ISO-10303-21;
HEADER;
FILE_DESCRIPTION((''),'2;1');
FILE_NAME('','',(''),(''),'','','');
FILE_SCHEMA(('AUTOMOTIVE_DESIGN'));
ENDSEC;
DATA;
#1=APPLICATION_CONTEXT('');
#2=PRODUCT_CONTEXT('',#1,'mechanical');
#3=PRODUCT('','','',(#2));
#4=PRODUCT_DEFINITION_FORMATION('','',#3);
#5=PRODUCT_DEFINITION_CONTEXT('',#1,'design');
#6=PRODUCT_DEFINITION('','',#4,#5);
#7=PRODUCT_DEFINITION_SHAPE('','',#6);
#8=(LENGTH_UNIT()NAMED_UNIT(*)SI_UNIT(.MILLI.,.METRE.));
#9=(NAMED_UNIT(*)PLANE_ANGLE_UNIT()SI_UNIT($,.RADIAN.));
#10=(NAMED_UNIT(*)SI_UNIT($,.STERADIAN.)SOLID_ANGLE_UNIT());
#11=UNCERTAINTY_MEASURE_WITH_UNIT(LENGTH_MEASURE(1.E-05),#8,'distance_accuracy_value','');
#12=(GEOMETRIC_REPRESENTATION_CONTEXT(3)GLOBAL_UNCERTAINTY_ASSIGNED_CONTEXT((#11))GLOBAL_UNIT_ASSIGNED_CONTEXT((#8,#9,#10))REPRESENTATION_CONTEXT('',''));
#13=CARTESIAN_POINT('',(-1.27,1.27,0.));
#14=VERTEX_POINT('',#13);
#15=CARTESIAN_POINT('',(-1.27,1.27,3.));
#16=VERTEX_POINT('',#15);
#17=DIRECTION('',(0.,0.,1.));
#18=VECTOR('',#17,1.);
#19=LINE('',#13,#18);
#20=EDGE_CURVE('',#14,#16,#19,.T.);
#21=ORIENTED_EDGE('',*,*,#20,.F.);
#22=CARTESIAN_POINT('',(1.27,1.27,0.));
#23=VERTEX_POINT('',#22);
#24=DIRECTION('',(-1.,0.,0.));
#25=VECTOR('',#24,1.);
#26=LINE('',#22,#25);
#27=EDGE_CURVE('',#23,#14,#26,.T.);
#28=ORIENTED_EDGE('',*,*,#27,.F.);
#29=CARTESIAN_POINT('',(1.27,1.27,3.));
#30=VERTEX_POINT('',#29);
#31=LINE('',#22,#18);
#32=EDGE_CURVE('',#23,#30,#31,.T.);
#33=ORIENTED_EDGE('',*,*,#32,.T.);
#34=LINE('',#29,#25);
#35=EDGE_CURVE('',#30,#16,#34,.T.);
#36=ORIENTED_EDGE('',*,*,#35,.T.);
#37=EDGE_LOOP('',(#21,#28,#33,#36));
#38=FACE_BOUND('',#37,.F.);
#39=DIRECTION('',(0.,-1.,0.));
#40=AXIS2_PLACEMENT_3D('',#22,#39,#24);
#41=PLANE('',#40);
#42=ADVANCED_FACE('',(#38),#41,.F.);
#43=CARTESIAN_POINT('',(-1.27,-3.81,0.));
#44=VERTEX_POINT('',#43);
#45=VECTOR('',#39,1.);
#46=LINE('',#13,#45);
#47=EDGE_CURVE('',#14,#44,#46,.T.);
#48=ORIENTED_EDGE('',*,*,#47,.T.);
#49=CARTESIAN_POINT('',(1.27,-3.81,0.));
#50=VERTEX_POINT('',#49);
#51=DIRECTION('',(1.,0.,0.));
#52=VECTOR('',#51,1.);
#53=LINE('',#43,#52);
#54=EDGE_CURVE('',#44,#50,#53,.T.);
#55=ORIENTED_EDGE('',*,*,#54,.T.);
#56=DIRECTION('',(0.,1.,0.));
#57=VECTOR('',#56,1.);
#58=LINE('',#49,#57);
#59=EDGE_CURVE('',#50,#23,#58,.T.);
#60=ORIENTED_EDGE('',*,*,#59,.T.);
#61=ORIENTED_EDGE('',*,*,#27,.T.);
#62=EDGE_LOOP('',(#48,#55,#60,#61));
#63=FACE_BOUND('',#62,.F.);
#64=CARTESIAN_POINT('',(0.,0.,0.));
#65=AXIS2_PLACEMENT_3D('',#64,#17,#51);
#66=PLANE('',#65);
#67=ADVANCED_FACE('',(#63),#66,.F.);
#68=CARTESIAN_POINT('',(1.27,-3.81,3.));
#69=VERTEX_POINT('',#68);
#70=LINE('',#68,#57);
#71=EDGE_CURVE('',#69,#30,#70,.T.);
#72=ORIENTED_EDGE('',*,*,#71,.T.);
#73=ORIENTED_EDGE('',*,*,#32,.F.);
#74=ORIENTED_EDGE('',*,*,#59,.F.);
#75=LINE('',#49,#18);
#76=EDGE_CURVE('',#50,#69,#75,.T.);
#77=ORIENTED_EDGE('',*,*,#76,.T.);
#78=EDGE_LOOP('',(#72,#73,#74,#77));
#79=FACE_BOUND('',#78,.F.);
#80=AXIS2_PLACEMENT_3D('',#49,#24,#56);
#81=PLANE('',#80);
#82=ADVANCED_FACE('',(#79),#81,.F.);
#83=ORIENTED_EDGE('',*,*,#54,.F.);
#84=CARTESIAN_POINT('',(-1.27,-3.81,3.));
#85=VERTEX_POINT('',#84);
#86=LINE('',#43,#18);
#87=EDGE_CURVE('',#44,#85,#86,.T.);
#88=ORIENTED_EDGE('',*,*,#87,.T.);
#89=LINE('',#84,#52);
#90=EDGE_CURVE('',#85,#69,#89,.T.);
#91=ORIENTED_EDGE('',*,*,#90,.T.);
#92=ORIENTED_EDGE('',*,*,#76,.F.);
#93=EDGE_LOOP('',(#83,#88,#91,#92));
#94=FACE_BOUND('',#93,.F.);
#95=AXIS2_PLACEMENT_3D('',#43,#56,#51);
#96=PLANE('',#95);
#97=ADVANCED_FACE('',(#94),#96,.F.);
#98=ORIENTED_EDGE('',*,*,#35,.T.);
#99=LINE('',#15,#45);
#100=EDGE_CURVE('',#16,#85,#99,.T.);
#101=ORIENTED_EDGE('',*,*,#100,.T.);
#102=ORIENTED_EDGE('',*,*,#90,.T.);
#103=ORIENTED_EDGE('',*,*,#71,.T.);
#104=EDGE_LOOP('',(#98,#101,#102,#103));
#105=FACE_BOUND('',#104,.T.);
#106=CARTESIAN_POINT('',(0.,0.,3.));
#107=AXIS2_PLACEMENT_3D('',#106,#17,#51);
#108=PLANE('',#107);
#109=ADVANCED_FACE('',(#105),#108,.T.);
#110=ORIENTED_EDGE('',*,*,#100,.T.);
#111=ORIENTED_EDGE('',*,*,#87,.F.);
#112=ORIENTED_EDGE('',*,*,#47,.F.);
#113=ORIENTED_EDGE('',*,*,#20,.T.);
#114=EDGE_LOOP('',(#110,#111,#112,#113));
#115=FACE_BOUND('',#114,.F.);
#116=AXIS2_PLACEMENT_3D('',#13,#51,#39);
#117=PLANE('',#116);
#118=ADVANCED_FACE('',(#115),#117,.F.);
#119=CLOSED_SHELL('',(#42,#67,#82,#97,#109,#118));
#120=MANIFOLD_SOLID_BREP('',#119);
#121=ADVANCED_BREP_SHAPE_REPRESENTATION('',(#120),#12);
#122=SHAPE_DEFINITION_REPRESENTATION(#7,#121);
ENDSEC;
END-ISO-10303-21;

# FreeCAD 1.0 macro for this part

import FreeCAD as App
import Part
import Sketcher

V = App.Vector
Q = App.Units.Quantity

doc = App.newDocument("Part")
params = doc.addObject("Spreadsheet::Sheet", "Params")
for row, (alias, value) in enumerate([
    ("sketch1_width", "0.1 in"),
    ("sketch1_height", "0.2 in"),
    ("pad1_length", "0.1181102 in"),
], start=1):
    params.set(f"A{row}", alias)
    params.set(f"B{row}", "=" + value)
    params.setAlias(f"B{row}", alias)

body = doc.addObject("PartDesign::Body", "Body")

# Sketch on XY plane
sketch1 = body.newObject("Sketcher::SketchObject", "Sketch")
sketch1.AttachmentSupport = (doc.getObject("XY_Plane"), [""])
sketch1.MapMode = "FlatFace"
sketch1.addGeometry([
    Part.LineSegment(V(1.3, 1.3, 0), V(-1.3, 1.3, 0)),
    Part.LineSegment(V(-1.3, 1.3, 0), V(-1.3, -3.8, 0)),
    Part.LineSegment(V(-1.3, -3.8, 0), V(1.3, -3.8, 0)),
    Part.LineSegment(V(1.3, -3.8, 0), V(1.3, 1.3, 0)),
], False)
sketch1.addConstraint([
    Sketcher.Constraint("Coincident", 0, 2, 1, 1),
    Sketcher.Constraint("Coincident", 1, 2, 2, 1),
    Sketcher.Constraint("Coincident", 2, 2, 3, 1),
    Sketcher.Constraint("Coincident", 3, 2, 0, 1),
    Sketcher.Constraint("Horizontal", 0),
    Sketcher.Constraint("Vertical", 1),
    Sketcher.Constraint("Horizontal", 2),
    Sketcher.Constraint("Vertical", 3),
    Sketcher.Constraint("DistanceX", 0, 2, 0, 1, Q("0.1 in")),
    Sketcher.Constraint("DistanceY", 1, 2, 1, 1, Q("0.2 in")),
    Sketcher.Constraint("DistanceX", 0, 2, -1, 1, Q("0.05 in")),
    Sketcher.Constraint("DistanceY", -1, 1, 0, 2, Q("0.05 in")),
])
sketch1.setExpression("Constraints[8]", "Params.sketch1_width")
sketch1.setExpression("Constraints[9]", "Params.sketch1_height")
pad1 = body.newObject("PartDesign::Pad", "Pad")
pad1.Profile = sketch1
pad1.setExpression("Length", "Params.pad1_length")

doc.recompute()
